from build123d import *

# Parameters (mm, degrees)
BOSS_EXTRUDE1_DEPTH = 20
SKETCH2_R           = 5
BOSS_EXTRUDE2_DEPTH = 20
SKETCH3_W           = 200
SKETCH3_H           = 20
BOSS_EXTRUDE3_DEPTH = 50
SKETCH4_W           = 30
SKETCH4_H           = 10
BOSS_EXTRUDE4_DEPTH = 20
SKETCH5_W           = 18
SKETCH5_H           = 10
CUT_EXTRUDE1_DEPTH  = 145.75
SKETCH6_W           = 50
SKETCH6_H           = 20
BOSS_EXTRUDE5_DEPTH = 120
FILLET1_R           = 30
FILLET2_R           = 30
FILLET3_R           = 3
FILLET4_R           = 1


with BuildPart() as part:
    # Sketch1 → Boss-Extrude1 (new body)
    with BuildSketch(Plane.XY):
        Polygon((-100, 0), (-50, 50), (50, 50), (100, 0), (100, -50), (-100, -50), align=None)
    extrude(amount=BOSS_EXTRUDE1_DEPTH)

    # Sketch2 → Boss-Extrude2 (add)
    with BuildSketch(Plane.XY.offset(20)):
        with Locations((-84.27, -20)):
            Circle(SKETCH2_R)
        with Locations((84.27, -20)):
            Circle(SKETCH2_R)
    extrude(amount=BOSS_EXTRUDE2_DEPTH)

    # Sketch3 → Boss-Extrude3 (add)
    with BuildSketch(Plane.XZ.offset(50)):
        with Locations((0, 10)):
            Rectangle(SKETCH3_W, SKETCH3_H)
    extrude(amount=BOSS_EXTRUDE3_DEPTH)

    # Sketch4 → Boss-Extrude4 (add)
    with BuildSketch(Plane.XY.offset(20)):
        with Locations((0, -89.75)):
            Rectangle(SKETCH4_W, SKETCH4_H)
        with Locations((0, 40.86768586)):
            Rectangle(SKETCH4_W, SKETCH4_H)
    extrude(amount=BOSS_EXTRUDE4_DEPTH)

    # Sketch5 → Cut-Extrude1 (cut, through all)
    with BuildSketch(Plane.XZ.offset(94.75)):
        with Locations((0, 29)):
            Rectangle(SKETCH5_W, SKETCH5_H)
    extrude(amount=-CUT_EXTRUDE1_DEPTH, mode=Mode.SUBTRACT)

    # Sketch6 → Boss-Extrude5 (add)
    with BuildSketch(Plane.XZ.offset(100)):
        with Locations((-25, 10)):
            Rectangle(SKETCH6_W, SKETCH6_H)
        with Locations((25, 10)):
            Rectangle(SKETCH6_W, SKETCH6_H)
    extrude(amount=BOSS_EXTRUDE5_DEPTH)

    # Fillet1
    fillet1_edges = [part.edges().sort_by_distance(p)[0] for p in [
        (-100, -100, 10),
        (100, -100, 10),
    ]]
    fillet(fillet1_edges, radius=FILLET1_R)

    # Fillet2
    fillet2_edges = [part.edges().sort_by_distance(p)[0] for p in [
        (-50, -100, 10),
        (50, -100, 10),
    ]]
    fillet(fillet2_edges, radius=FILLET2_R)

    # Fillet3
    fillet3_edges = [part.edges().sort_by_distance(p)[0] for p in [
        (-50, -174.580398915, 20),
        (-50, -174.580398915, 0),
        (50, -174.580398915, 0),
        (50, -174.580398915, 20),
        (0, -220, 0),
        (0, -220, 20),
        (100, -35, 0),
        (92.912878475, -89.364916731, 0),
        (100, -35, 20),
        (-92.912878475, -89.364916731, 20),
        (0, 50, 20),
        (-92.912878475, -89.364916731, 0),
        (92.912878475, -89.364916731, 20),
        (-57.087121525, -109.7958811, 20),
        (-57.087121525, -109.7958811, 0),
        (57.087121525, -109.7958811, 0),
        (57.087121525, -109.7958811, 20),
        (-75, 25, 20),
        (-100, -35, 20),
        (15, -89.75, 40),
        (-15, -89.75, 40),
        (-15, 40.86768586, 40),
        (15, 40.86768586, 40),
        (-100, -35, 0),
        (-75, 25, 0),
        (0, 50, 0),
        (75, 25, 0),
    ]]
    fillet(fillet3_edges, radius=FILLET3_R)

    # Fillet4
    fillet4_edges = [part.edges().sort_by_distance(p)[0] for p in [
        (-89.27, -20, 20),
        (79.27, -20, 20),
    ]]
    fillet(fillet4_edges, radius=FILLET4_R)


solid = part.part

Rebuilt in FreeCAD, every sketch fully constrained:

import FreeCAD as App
import Part
import Sketcher
from FreeCAD import Vector
Q = App.Units.Quantity


def edges_at(feature, points):
    """Names of the edges that pass closest to the given points."""
    edges = feature.Shape.Edges
    near = lambda p: min(range(len(edges)), key=lambda i: edges[i].distToShape(Part.Vertex(*p))[0])
    return sorted({f"Edge{near(p) + 1}" for p in points})


def add_polygon(sketch, points):
    """Adds a closed chain of lines whose ends are joined by coincident constraints."""
    first, n = sketch.GeometryCount, len(points)
    for a, b in zip(points, points[1:] + points[:1]):
        sketch.addGeometry(Part.LineSegment(App.Vector(*a, 0), App.Vector(*b, 0)), False)
    for i in range(n):
        sketch.addConstraint(Sketcher.Constraint("Coincident", first + i, 2, first + (i + 1) % n, 1))

doc = App.newDocument("Part")
body = doc.addObject("PartDesign::Body", "Body")

sketch1 = body.newObject("Sketcher::SketchObject", "Sketch")
sketch1.AttachmentSupport = (doc.getObject("XY_Plane"), [""])
sketch1.MapMode = "FlatFace"
add_polygon(sketch1, [(-50, 50), (-100, 0), (-100, -50), (100, -50), (100, 0), (50, 50)])
sketch1.addConstraint(Sketcher.Constraint("Vertical", 1))
sketch1.addConstraint(Sketcher.Constraint("Horizontal", 2))
sketch1.addConstraint(Sketcher.Constraint("Vertical", 3))
sketch1.addConstraint(Sketcher.Constraint("Horizontal", 5))
sketch1.addConstraint(Sketcher.Constraint("Symmetric", 0, 2, 3, 2, -1, 1))
sketch1.addConstraint(Sketcher.Constraint("PointOnObject", 0, 2, -1))
sketch1.addConstraint(Sketcher.Constraint("Perpendicular", 0, 4))
sketch1.addConstraint(Sketcher.Constraint("Equal", 0, 4))
sketch1.addConstraint(Sketcher.Constraint("DistanceX", 2, 1, 2, 2, Q("200 mm")))
sketch1.addConstraint(Sketcher.Constraint("DistanceX", 5, 2, 5, 1, Q("100 mm")))
sketch1.addConstraint(Sketcher.Constraint("DistanceY", 1, 2, 1, 1, Q("50 mm")))
pad1 = body.newObject("PartDesign::Pad", "Pad")
pad1.Profile = sketch1
pad1.Length = 20

sketch2 = body.newObject("Sketcher::SketchObject", "Sketch001")
sketch2.AttachmentSupport = (doc.getObject("XY_Plane"), [""])
sketch2.MapMode = "FlatFace"
sketch2.AttachmentOffset = App.Placement(Vector(0, 0, 20), App.Rotation())
sketch2.addGeometry(Part.Circle(Vector(-84, -20, 0), Vector(0, 0, 1), 5), False)
sketch2.addGeometry(Part.Circle(Vector(84, -20, 0), Vector(0, 0, 1), 5), False)
sketch2.addConstraint(Sketcher.Constraint("Equal", 0, 1))
sketch2.addConstraint(Sketcher.Constraint("Symmetric", 0, 3, 1, 3, -2))
sketch2.addConstraint(Sketcher.Constraint("Diameter", 0, Q("10 mm")))
sketch2.addConstraint(Sketcher.Constraint("DistanceY", 0, 3, -1, 1, Q("20 mm")))
sketch2.addConstraint(Sketcher.Constraint("DistanceX", 0, 3, -1, 1, Q("84.27 mm")))
pad2 = body.newObject("PartDesign::Pad", "Pad001")
pad2.Profile = sketch2
pad2.Length = 20

sketch3 = body.newObject("Sketcher::SketchObject", "Sketch002")
sketch3.AttachmentSupport = (doc.getObject("XZ_Plane"), [""])
sketch3.MapMode = "FlatFace"
sketch3.AttachmentOffset = App.Placement(Vector(0, 0, 50), App.Rotation())
add_polygon(sketch3, [(-100, 20), (-100, 0), (100, 0), (100, 20)])
sketch3.addConstraint(Sketcher.Constraint("Vertical", 0))
sketch3.addConstraint(Sketcher.Constraint("Horizontal", 1))
sketch3.addConstraint(Sketcher.Constraint("Vertical", 2))
sketch3.addConstraint(Sketcher.Constraint("Horizontal", 3))
sketch3.addConstraint(Sketcher.Constraint("Symmetric", 0, 2, 1, 2, -1, 1))
sketch3.addConstraint(Sketcher.Constraint("DistanceX", 1, 1, 1, 2, Q("200 mm")))
sketch3.addConstraint(Sketcher.Constraint("DistanceY", 0, 2, 0, 1, Q("20 mm")))
pad3 = body.newObject("PartDesign::Pad", "Pad002")
pad3.Profile = sketch3
pad3.Length = 50

sketch4 = body.newObject("Sketcher::SketchObject", "Sketch003")
sketch4.AttachmentSupport = (doc.getObject("XY_Plane"), [""])
sketch4.MapMode = "FlatFace"
sketch4.AttachmentOffset = App.Placement(Vector(0, 0, 20), App.Rotation())
add_polygon(sketch4, [(-15, -85), (-15, -95), (15, -95), (15, -85)])
add_polygon(sketch4, [(-15, 46), (-15, 36), (15, 36), (15, 46)])
sketch4.addConstraint(Sketcher.Constraint("Vertical", 0))
sketch4.addConstraint(Sketcher.Constraint("Horizontal", 1))
sketch4.addConstraint(Sketcher.Constraint("Vertical", 2))
sketch4.addConstraint(Sketcher.Constraint("Horizontal", 3))
sketch4.addConstraint(Sketcher.Constraint("Vertical", 4))
sketch4.addConstraint(Sketcher.Constraint("Horizontal", 5))
sketch4.addConstraint(Sketcher.Constraint("Vertical", 6))
sketch4.addConstraint(Sketcher.Constraint("Horizontal", 7))
sketch4.addConstraint(Sketcher.Constraint("Vertical", 3, 2, 4, 2))
sketch4.addConstraint(Sketcher.Constraint("Vertical", 2, 2, 5, 2))
sketch4.addConstraint(Sketcher.Constraint("Equal", 2, 4))
sketch4.addConstraint(Sketcher.Constraint("DistanceX", 1, 1, 1, 2, Q("30 mm")))
sketch4.addConstraint(Sketcher.Constraint("DistanceY", 0, 2, 0, 1, Q("10 mm")))
sketch4.addConstraint(Sketcher.Constraint("DistanceX", 0, 2, -1, 1, Q("15 mm")))
sketch4.addConstraint(Sketcher.Constraint("DistanceY", 0, 2, -1, 1, Q("94.75 mm")))
sketch4.addConstraint(Sketcher.Constraint("DistanceY", -1, 1, 4, 2, Q("35.867686 mm")))
pad4 = body.newObject("PartDesign::Pad", "Pad003")
pad4.Profile = sketch4
pad4.Length = 20

sketch5 = body.newObject("Sketcher::SketchObject", "Sketch004")
sketch5.AttachmentSupport = (doc.getObject("XZ_Plane"), [""])
sketch5.MapMode = "FlatFace"
sketch5.AttachmentOffset = App.Placement(Vector(0, 0, 94.75), App.Rotation())
add_polygon(sketch5, [(-9, 34), (-9, 24), (9, 24), (9, 34)])
sketch5.addConstraint(Sketcher.Constraint("Vertical", 0))
sketch5.addConstraint(Sketcher.Constraint("Horizontal", 1))
sketch5.addConstraint(Sketcher.Constraint("Vertical", 2))
sketch5.addConstraint(Sketcher.Constraint("Horizontal", 3))
sketch5.addConstraint(Sketcher.Constraint("DistanceX", 1, 1, 1, 2, Q("18 mm")))
sketch5.addConstraint(Sketcher.Constraint("DistanceY", 0, 2, 0, 1, Q("10 mm")))
sketch5.addConstraint(Sketcher.Constraint("DistanceX", 0, 2, -1, 1, Q("9 mm")))
sketch5.addConstraint(Sketcher.Constraint("DistanceY", -1, 1, 0, 2, Q("24 mm")))
pocket1 = body.newObject("PartDesign::Pocket", "Pocket")
pocket1.Profile = sketch5
pocket1.Type = "ThroughAll"

sketch6 = body.newObject("Sketcher::SketchObject", "Sketch005")
sketch6.AttachmentSupport = (doc.getObject("XZ_Plane"), [""])
sketch6.MapMode = "FlatFace"
sketch6.AttachmentOffset = App.Placement(Vector(0, 0, 100), App.Rotation())
add_polygon(sketch6, [(-50, 20), (-50, 0), (50, 0), (50, 20)])
sketch6.addConstraint(Sketcher.Constraint("Vertical", 0))
sketch6.addConstraint(Sketcher.Constraint("Horizontal", 1))
sketch6.addConstraint(Sketcher.Constraint("Vertical", 2))
sketch6.addConstraint(Sketcher.Constraint("Horizontal", 3))
sketch6.addConstraint(Sketcher.Constraint("Symmetric", 0, 2, 1, 2, -1, 1))
sketch6.addConstraint(Sketcher.Constraint("DistanceX", 1, 1, 1, 2, Q("100 mm")))
sketch6.addConstraint(Sketcher.Constraint("DistanceY", 0, 2, 0, 1, Q("20 mm")))
pad5 = body.newObject("PartDesign::Pad", "Pad004")
pad5.Profile = sketch6
pad5.Length = 120
doc.recompute()

fillet = body.newObject("PartDesign::Fillet", "Fillet")
fillet.Base = (pad5, edges_at(pad5, [(-100, -100, 10), (100, -100, 10)]))
fillet.Radius = 30
doc.recompute()

fillet2 = body.newObject("PartDesign::Fillet", "Fillet001")
fillet2.Base = (fillet, edges_at(fillet, [(-50, -100, 10), (50, -100, 10)]))
fillet2.Radius = 30
doc.recompute()

fillet3 = body.newObject("PartDesign::Fillet", "Fillet002")
fillet3.Base = (fillet2, edges_at(fillet2, [
    (-50, -174.58, 20),
    (-50, -174.58, 0),
    (50, -174.58, 0),
    (50, -174.58, 20),
    (0, -220, 0),
    (0, -220, 20),
    (100, -35, 0),
    (92.913, -89.365, 0),
    (100, -35, 20),
    (-92.913, -89.365, 20),
    (0, 50, 20),
    (-92.913, -89.365, 0),
    (92.913, -89.365, 20),
    (-57.087, -109.796, 20),
    (-57.087, -109.796, 0),
    (57.087, -109.796, 0),
    (57.087, -109.796, 20),
    (-75, 25, 20),
    (-100, -35, 20),
    (15, -89.75, 40),
    (-15, -89.75, 40),
    (-15, 40.868, 40),
    (15, 40.868, 40),
    (-100, -35, 0),
    (-75, 25, 0),
    (0, 50, 0),
    (75, 25, 0),
]))
fillet3.Radius = 3
doc.recompute()

fillet4 = body.newObject("PartDesign::Fillet", "Fillet003")
fillet4.Base = (fillet3, edges_at(fillet3, [(-89.27, -20, 20), (79.27, -20, 20)]))
fillet4.Radius = 1

doc.recompute()
